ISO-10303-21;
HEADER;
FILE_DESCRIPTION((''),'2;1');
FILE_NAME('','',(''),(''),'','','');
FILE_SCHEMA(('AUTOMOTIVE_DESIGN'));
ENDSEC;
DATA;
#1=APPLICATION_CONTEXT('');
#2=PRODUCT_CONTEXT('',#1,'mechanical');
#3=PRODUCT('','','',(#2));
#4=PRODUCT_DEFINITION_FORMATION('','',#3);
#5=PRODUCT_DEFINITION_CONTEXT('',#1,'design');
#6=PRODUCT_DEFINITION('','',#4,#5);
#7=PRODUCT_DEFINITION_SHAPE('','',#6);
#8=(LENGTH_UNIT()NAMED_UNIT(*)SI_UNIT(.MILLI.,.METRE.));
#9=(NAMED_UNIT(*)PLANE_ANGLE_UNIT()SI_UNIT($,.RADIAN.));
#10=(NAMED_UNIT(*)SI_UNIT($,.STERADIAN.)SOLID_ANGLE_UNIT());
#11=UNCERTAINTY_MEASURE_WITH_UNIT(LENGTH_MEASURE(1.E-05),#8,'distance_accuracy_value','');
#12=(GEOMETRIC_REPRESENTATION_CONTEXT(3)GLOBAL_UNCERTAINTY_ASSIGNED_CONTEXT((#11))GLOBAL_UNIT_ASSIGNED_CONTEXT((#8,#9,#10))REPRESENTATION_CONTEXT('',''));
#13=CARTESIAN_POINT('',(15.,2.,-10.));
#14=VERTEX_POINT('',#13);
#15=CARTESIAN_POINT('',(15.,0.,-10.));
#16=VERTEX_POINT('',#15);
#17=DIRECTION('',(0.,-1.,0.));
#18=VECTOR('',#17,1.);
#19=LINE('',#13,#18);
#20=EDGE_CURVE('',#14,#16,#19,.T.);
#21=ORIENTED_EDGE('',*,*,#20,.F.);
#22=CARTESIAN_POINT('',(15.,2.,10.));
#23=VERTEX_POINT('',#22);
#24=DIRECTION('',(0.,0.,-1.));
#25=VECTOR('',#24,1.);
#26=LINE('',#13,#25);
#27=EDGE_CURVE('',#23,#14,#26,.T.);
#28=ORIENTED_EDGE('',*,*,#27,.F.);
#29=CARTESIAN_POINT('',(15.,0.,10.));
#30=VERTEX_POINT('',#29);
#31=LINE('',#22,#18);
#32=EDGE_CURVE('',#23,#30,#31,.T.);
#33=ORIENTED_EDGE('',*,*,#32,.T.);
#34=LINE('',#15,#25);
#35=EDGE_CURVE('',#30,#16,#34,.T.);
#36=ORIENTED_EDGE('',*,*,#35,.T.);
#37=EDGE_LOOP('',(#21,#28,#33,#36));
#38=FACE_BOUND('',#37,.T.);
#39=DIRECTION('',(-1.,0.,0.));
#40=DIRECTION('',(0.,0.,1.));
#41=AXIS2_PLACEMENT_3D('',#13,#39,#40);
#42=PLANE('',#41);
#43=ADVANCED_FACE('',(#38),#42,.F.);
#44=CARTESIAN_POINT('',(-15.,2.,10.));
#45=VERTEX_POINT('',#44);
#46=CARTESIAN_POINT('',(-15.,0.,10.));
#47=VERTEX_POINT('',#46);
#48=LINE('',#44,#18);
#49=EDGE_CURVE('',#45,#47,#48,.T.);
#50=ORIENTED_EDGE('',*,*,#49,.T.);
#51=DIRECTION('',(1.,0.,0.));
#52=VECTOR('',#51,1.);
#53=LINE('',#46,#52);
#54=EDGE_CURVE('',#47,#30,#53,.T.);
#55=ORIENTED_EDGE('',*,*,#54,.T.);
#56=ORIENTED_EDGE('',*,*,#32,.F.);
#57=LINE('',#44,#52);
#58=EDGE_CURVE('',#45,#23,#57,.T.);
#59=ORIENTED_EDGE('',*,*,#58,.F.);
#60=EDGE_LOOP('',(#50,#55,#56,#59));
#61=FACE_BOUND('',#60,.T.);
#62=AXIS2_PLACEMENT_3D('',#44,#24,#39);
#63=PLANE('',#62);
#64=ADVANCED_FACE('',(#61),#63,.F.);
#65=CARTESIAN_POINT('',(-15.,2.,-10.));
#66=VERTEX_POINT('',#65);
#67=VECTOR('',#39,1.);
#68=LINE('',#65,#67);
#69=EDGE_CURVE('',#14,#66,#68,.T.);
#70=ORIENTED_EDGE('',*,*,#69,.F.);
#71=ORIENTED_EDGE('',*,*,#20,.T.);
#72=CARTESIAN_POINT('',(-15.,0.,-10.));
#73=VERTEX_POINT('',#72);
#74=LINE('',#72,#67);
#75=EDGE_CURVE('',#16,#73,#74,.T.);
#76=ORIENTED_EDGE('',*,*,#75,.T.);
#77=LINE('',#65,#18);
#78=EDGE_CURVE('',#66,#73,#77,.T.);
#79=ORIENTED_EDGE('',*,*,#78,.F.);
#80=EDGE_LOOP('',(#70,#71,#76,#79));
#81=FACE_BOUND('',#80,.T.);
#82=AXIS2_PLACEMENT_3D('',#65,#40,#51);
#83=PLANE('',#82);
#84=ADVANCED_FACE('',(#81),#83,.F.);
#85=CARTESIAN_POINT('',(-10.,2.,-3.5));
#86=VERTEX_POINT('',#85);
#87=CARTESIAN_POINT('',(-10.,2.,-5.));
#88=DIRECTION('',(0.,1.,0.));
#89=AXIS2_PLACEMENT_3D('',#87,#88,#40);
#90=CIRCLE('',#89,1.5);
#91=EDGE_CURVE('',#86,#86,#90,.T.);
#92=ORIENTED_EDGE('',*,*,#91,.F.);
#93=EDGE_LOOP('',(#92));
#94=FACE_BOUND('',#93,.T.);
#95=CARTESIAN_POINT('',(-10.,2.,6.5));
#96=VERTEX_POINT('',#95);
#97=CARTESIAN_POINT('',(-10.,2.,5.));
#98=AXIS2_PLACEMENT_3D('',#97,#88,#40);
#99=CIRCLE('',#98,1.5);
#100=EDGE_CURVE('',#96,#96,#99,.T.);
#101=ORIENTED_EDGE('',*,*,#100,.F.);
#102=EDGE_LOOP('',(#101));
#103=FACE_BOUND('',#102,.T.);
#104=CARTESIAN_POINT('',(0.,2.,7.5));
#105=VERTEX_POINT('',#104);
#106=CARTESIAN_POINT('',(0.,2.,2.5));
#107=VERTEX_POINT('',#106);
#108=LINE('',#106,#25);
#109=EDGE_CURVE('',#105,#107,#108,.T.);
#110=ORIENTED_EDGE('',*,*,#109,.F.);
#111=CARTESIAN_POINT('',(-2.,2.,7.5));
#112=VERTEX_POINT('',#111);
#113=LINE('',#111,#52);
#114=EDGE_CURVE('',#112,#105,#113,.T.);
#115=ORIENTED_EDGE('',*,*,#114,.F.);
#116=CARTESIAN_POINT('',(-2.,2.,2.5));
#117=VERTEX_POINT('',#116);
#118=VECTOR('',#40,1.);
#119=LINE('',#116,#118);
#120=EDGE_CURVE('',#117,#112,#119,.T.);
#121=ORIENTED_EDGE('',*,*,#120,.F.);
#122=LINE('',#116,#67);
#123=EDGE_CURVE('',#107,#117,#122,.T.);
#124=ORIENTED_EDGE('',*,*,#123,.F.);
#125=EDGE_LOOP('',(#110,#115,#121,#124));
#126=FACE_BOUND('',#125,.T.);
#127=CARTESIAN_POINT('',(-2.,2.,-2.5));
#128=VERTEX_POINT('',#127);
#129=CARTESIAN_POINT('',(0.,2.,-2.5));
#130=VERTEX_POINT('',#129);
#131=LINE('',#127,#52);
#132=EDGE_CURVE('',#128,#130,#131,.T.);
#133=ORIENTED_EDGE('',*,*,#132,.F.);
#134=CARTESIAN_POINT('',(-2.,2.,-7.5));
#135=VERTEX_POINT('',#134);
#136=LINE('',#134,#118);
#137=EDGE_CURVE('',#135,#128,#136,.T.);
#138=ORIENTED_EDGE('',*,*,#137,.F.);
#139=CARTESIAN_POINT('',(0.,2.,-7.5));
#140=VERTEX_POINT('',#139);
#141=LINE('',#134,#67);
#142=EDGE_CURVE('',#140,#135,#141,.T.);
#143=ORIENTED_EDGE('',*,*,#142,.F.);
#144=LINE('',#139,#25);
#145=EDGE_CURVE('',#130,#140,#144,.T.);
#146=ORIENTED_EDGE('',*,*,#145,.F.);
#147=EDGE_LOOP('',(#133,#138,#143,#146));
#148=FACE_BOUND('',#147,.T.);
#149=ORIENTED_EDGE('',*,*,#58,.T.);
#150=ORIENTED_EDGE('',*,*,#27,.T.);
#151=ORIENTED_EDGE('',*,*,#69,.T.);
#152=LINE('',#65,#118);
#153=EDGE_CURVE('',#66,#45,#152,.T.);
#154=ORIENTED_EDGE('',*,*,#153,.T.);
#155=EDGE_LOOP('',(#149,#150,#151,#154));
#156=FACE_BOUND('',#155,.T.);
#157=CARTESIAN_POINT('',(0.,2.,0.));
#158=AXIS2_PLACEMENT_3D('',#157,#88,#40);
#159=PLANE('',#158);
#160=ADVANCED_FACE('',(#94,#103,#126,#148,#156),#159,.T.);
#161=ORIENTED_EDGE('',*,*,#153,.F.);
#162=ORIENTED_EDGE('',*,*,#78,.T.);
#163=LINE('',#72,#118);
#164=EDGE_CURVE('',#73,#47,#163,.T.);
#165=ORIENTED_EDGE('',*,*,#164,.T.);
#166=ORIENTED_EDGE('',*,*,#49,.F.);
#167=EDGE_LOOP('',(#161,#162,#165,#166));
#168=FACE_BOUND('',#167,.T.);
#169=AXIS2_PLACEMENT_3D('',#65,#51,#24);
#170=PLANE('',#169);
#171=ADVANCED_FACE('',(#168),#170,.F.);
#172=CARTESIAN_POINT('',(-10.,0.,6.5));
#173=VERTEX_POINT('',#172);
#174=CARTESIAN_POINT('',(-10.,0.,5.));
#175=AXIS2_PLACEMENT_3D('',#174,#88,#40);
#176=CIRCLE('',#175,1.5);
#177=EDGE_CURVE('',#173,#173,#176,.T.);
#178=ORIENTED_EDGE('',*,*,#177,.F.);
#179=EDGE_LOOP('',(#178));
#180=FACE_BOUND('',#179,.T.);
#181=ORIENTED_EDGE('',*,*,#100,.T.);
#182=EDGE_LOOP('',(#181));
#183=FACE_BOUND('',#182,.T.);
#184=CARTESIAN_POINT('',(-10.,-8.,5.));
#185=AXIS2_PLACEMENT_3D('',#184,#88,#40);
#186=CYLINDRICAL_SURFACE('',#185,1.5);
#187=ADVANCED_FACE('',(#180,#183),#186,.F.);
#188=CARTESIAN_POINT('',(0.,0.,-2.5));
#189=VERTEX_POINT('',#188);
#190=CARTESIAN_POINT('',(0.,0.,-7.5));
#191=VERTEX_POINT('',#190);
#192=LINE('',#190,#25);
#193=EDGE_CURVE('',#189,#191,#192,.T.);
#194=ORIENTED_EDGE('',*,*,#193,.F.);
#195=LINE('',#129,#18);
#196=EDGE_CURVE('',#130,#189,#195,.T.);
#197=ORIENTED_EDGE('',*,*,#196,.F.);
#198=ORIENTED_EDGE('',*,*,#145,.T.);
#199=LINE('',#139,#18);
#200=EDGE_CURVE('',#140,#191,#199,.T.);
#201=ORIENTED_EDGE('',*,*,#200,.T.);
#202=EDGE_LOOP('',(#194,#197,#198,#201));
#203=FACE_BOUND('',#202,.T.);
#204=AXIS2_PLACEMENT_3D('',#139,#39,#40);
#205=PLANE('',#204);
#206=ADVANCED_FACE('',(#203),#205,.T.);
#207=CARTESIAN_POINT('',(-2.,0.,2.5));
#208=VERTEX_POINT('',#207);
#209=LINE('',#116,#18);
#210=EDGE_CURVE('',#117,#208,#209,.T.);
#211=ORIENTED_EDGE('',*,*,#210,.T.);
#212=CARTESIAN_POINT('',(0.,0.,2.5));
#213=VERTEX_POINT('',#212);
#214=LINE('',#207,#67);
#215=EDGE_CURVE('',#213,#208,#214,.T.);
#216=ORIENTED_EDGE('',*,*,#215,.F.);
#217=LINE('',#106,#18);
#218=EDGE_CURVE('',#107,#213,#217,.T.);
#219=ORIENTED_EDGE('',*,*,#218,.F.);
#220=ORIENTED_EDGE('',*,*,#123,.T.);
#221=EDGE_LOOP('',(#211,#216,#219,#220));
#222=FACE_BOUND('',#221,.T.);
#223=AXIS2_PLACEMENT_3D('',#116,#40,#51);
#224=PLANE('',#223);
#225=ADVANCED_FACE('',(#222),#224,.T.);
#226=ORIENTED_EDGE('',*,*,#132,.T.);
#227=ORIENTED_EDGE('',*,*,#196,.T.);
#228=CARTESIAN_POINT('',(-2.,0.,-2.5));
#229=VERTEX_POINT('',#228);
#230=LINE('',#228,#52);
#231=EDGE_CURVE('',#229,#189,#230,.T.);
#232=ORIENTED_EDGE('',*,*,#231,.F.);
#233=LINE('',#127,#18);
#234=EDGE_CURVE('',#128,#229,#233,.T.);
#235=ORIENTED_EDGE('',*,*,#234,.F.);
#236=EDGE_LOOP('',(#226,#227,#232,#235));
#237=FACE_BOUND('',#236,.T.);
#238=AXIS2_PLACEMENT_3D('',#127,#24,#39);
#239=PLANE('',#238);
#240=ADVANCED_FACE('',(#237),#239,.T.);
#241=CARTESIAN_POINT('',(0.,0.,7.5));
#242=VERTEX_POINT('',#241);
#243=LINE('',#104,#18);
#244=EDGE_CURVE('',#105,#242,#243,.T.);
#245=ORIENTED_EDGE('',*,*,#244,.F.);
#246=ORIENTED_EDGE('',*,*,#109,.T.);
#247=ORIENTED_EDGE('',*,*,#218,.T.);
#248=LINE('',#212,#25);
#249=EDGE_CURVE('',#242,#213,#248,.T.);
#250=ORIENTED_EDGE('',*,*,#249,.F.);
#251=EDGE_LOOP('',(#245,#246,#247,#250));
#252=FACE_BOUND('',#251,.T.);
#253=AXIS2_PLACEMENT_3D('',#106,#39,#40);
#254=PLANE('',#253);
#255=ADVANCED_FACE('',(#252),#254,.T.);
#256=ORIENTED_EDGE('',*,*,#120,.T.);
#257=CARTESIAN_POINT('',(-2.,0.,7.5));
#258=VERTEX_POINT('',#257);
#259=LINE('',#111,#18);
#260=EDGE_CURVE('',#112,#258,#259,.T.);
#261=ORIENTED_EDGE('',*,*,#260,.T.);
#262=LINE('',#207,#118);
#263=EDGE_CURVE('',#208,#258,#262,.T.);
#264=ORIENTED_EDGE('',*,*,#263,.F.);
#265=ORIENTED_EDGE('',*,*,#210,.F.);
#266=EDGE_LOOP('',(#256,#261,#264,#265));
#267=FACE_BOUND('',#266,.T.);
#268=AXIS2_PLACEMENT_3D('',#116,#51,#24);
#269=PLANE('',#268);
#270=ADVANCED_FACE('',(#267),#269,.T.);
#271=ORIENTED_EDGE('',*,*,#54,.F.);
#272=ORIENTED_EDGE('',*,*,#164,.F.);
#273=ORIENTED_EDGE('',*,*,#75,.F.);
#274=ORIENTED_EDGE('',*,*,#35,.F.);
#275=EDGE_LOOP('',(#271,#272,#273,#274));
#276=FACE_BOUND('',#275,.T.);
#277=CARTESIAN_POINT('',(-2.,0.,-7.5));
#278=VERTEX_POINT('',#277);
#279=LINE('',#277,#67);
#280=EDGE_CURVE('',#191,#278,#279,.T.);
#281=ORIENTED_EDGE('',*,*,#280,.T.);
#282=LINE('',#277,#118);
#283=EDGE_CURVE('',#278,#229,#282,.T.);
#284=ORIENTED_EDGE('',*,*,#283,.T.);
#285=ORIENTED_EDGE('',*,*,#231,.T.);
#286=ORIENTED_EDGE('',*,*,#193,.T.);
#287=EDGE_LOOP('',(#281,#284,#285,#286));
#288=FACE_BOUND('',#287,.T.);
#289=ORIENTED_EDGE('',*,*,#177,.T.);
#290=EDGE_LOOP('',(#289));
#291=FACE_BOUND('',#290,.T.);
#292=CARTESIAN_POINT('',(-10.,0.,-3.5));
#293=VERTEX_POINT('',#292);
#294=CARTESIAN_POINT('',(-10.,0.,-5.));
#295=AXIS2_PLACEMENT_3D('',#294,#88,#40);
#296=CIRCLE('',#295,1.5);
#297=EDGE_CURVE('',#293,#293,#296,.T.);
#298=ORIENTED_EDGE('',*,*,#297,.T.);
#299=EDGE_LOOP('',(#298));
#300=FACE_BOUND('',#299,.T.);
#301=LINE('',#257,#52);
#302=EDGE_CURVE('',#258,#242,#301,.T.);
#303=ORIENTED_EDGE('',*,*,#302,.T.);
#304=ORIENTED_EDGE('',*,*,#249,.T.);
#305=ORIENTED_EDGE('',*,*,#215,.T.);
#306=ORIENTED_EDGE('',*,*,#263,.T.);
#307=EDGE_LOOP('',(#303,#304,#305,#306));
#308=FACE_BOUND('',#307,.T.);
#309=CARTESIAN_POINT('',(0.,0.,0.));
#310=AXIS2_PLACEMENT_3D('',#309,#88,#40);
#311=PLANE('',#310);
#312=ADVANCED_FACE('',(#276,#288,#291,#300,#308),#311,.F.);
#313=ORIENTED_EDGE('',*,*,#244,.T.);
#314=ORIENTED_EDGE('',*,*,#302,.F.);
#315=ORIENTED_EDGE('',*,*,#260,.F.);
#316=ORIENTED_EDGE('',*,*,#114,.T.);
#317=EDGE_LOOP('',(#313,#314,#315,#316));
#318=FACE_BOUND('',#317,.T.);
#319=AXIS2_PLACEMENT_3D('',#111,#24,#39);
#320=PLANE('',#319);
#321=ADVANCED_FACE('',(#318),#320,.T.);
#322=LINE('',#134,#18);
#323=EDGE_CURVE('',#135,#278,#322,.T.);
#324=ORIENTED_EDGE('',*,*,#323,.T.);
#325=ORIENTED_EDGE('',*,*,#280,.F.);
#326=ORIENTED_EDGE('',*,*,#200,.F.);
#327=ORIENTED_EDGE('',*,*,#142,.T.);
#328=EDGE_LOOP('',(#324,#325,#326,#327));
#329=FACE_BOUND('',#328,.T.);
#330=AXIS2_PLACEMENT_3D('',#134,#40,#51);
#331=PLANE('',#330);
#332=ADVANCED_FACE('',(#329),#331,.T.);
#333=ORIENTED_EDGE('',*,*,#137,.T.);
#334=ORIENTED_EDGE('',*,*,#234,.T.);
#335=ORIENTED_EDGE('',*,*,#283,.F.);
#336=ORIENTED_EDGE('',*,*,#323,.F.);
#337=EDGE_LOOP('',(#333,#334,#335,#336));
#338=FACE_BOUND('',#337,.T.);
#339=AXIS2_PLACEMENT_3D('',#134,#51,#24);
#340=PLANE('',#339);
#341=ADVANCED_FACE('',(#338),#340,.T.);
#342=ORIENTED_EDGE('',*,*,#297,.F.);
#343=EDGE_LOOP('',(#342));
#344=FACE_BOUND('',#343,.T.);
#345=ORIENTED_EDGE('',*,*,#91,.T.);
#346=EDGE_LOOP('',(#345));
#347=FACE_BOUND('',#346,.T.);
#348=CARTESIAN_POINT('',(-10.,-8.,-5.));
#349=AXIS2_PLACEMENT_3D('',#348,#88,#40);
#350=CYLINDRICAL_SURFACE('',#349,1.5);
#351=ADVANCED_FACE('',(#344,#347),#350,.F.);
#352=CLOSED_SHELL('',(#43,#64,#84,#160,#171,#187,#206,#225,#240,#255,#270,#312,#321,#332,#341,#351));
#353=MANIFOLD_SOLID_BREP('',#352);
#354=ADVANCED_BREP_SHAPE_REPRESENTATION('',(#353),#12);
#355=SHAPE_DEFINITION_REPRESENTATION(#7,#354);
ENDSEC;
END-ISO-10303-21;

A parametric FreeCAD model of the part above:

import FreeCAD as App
import Part
import Sketcher
from FreeCAD import Vector
Q = App.Units.Quantity


def add_polygon(sketch, points):
    """Adds a closed chain of lines whose ends are joined by coincident constraints."""
    first, n = sketch.GeometryCount, len(points)
    for a, b in zip(points, points[1:] + points[:1]):
        sketch.addGeometry(Part.LineSegment(App.Vector(*a, 0), App.Vector(*b, 0)), False)
    for i in range(n):
        sketch.addConstraint(Sketcher.Constraint("Coincident", first + i, 2, first + (i + 1) % n, 1))

doc = App.newDocument("Part")
body = doc.addObject("PartDesign::Body", "Body")

sketch1 = body.newObject("Sketcher::SketchObject", "Sketch")
sketch1.AttachmentSupport = (doc.getObject("XZ_Plane"), [""])
sketch1.MapMode = "FlatFace"
add_polygon(sketch1, [(-15, -10), (-15, 10), (15, 10), (15, -10)])
add_polygon(sketch1, [(0, 7.5), (-2, 7.5), (-2, 2.5), (0, 2.5)])
add_polygon(sketch1, [(0, -2.5), (-2, -2.5), (-2, -7.5), (0, -7.5)])
sketch1.addConstraint(Sketcher.Constraint("Vertical", 0))
sketch1.addConstraint(Sketcher.Constraint("Horizontal", 1))
sketch1.addConstraint(Sketcher.Constraint("Vertical", 2))
sketch1.addConstraint(Sketcher.Constraint("Horizontal", 3))
sketch1.addConstraint(Sketcher.Constraint("Horizontal", 4))
sketch1.addConstraint(Sketcher.Constraint("Vertical", 5))
sketch1.addConstraint(Sketcher.Constraint("Horizontal", 6))
sketch1.addConstraint(Sketcher.Constraint("Vertical", 7))
sketch1.addConstraint(Sketcher.Constraint("Horizontal", 8))
sketch1.addConstraint(Sketcher.Constraint("Vertical", 9))
sketch1.addConstraint(Sketcher.Constraint("Horizontal", 10))
sketch1.addConstraint(Sketcher.Constraint("Vertical", 11))
sketch1.addConstraint(Sketcher.Constraint("Symmetric", 0, 2, 2, 2, -1, 1))
sketch1.addConstraint(Sketcher.Constraint("Symmetric", 7, 2, 10, 2, -1, 1))
sketch1.addConstraint(Sketcher.Constraint("Symmetric", 5, 2, 8, 2, -1))
sketch1.addConstraint(Sketcher.Constraint("PointOnObject", 6, 2, -2))
sketch1.addConstraint(Sketcher.Constraint("DistanceX", 1, 1, 1, 2, Q("30 mm")))
sketch1.addConstraint(Sketcher.Constraint("DistanceX", 4, 2, 4, 1, Q("2 mm")))
sketch1.addConstraint(Sketcher.Constraint("DistanceY", 0, 1, 0, 2, Q("20 mm")))
sketch1.addConstraint(Sketcher.Constraint("DistanceY", 5, 2, 5, 1, Q("5 mm")))
sketch1.addConstraint(Sketcher.Constraint("DistanceY", 8, 2, 5, 2, Q("5 mm")))
pad1 = body.newObject("PartDesign::Pad", "Pad")
pad1.Profile = sketch1
pad1.Length = 2
pad1.Reversed = True

sketch2 = body.newObject("Sketcher::SketchObject", "Sketch001")
sketch2.AttachmentSupport = (doc.getObject("XZ_Plane"), [""])
sketch2.MapMode = "FlatFace"
sketch2.AttachmentOffset = App.Placement(Vector(0, 0, -2), App.Rotation())
sketch2.addGeometry(Part.Circle(Vector(-10, -5, 0), Vector(0, 0, 1), 1.5), False)
sketch2.addGeometry(Part.Circle(Vector(-10, 5, 0), Vector(0, 0, 1), 1.5), False)
sketch2.addConstraint(Sketcher.Constraint("Equal", 0, 1))
sketch2.addConstraint(Sketcher.Constraint("Symmetric", 0, 3, 1, 3, -1))
sketch2.addConstraint(Sketcher.Constraint("Diameter", 0, Q("3 mm")))
sketch2.addConstraint(Sketcher.Constraint("DistanceX", 0, 3, -1, 1, Q("10 mm")))
sketch2.addConstraint(Sketcher.Constraint("DistanceY", 0, 3, -1, 1, Q("5 mm")))
pocket1 = body.newObject("PartDesign::Pocket", "Pocket")
pocket1.Profile = sketch2
pocket1.Length = 10
pocket1.Reversed = True

doc.recompute()
